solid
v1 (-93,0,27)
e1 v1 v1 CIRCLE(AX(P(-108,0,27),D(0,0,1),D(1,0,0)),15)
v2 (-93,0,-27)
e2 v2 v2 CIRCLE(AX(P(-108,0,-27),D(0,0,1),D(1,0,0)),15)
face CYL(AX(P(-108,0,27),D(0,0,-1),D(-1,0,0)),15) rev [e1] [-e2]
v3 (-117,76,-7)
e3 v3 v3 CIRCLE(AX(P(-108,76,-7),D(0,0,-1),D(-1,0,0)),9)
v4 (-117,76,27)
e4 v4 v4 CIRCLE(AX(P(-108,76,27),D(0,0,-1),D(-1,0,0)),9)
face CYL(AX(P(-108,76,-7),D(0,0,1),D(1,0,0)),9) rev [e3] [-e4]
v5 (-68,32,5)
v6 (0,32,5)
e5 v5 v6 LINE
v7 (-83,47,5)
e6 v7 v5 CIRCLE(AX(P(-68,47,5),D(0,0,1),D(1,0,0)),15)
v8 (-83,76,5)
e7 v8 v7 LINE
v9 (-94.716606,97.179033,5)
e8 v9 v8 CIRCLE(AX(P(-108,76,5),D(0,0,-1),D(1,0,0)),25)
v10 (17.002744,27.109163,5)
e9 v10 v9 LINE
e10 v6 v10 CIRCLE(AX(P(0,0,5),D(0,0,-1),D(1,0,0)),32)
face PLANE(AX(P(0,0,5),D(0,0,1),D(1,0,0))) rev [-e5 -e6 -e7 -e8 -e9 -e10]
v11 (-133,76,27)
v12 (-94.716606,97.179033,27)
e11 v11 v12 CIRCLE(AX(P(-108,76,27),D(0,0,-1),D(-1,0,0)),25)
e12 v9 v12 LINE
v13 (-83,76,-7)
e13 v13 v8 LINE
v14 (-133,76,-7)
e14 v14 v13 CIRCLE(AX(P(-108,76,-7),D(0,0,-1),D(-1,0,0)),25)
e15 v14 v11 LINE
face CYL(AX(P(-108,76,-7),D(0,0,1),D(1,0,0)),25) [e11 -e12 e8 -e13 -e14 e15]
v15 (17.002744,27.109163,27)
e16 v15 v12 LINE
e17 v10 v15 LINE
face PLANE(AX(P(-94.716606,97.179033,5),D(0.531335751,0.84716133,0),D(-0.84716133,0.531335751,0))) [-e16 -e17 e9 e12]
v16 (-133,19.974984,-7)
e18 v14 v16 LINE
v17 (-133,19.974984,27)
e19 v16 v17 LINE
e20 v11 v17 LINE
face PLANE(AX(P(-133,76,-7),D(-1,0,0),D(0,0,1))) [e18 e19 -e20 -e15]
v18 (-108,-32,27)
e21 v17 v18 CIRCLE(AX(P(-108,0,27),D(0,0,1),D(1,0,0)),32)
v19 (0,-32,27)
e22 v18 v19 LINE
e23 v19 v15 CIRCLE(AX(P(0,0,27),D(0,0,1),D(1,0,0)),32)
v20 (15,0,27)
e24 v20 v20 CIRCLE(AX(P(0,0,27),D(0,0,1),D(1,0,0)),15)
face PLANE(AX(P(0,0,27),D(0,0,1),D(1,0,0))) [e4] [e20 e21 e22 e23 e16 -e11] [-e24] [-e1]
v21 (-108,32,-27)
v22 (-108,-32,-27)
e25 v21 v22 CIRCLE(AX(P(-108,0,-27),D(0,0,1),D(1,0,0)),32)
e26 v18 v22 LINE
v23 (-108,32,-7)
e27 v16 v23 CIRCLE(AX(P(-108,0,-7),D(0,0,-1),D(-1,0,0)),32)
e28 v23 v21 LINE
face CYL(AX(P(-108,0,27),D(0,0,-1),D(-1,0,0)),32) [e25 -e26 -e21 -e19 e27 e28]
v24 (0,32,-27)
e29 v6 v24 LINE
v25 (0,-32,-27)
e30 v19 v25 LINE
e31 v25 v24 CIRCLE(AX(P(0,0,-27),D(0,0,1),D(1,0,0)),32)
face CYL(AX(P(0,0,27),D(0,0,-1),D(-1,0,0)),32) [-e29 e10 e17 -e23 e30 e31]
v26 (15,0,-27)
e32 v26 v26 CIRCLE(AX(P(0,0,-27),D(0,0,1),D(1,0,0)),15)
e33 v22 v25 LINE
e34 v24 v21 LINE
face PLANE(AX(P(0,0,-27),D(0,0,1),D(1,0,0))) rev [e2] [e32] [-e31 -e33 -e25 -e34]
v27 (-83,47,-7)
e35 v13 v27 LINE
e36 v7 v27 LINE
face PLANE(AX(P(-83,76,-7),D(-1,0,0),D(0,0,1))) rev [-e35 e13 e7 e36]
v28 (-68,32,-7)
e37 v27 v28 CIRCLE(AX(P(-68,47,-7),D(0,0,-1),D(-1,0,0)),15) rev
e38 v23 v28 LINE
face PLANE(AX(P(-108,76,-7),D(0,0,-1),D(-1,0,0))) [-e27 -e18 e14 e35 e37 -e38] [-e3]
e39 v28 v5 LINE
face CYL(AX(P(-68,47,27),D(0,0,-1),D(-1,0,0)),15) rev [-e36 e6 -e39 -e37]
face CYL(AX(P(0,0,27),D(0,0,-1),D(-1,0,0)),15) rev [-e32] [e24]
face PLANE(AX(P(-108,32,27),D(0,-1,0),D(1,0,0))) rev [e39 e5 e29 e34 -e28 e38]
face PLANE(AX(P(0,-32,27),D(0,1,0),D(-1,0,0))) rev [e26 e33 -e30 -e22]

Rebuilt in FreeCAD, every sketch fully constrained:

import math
import FreeCAD as App
import Part
import Sketcher

V = App.Vector


def edges_at(feature, points):
    """Names of the edges that pass closest to the given points."""
    edges = feature.Shape.Edges
    near = lambda p: min(range(len(edges)), key=lambda i: edges[i].distToShape(Part.Vertex(*p))[0])
    return sorted({f"Edge{near(p) + 1}" for p in points})

doc = App.newDocument("Part")
body = doc.addObject("PartDesign::Body", "Body")

sketch1 = body.newObject("Sketcher::SketchObject", "Sketch")
sketch1.AttachmentSupport = (doc.getObject("XY_Plane"), [""])
sketch1.MapMode = "FlatFace"
sketch1.addGeometry(Part.LineSegment(V(0, 32, 0), V(-108, 32, 0)), False)
sketch1.addGeometry(Part.ArcOfCircle(Part.Circle(V(-108, 0, 0), V(0, 0, 1), 32), math.radians(90), math.radians(270)), False)
sketch1.addGeometry(Part.LineSegment(V(-108, -32, 0), V(0, -32, 0)), False)
sketch1.addGeometry(Part.ArcOfCircle(Part.Circle(V(0, 0, 0), V(0, 0, 1), 32), math.radians(-90), math.radians(90)), False)
sketch1.addGeometry(Part.Circle(V(0, 0, 0), V(0, 0, 1), 15), False)
sketch1.addGeometry(Part.Circle(V(-108, 0, 0), V(0, 0, 1), 15), False)
sketch1.addConstraint(Sketcher.Constraint("Tangent", 0, 2, 1, 1))
sketch1.addConstraint(Sketcher.Constraint("Tangent", 1, 2, 2, 1))
sketch1.addConstraint(Sketcher.Constraint("Tangent", 2, 2, 3, 1))
sketch1.addConstraint(Sketcher.Constraint("Tangent", 3, 2, 0, 1))
sketch1.addConstraint(Sketcher.Constraint("Horizontal", 0))
sketch1.addConstraint(Sketcher.Constraint("Horizontal", 2))
sketch1.addConstraint(Sketcher.Constraint("Coincident", 3, 3, -1, 1))
sketch1.addConstraint(Sketcher.Constraint("Coincident", 4, 3, -1, 1))
sketch1.addConstraint(Sketcher.Constraint("Coincident", 5, 3, 1, 3))
sketch1.addConstraint(Sketcher.Constraint("Equal", 4, 5))
sketch1.addConstraint(Sketcher.Constraint("Diameter", 4, 30.0))
sketch1.addConstraint(Sketcher.Constraint("Radius", 1, 32.0))
sketch1.addConstraint(Sketcher.Constraint("DistanceX", 0, 2, 0, 1, 108.0))
pad1 = body.newObject("PartDesign::Pad", "Pad")
pad1.Profile = sketch1
pad1.Length = 54
pad1.Midplane = True

sketch2 = body.newObject("Sketcher::SketchObject", "Sketch001")
sketch2.AttachmentSupport = (doc.getObject("XY_Plane"), [""])
sketch2.MapMode = "FlatFace"
sketch2.AttachmentOffset = App.Placement(V(0, 0, 27), App.Rotation())
sketch2.addGeometry(Part.LineSegment(V(-83, 32, 0), V(-83, 76, 0)), False)
sketch2.addGeometry(Part.ArcOfCircle(Part.Circle(V(-108, 76, 0), V(0, 0, 1), 25), math.radians(0), math.radians(180)), False)
sketch2.addGeometry(Part.LineSegment(V(-133, 76, 0), V(-133, 20, 0)), False)
sketch2.addGeometry(Part.ArcOfCircle(Part.Circle(V(-108, 0, 0), V(0, 0, 1), 32), math.radians(90), math.radians(141)), False)
sketch2.addGeometry(Part.LineSegment(V(-108, 32, 0), V(-83, 32, 0)), False)
sketch2.addConstraint(Sketcher.Constraint("Tangent", 0, 2, 1, 1))
sketch2.addConstraint(Sketcher.Constraint("Tangent", 1, 2, 2, 1))
sketch2.addConstraint(Sketcher.Constraint("Coincident", 2, 2, 3, 2))
sketch2.addConstraint(Sketcher.Constraint("Tangent", 3, 1, 4, 1))
sketch2.addConstraint(Sketcher.Constraint("Coincident", 4, 2, 0, 1))
sketch2.addConstraint(Sketcher.Constraint("Vertical", 0))
sketch2.addConstraint(Sketcher.Constraint("Vertical", 2))
sketch2.addConstraint(Sketcher.Constraint("Horizontal", 4))
sketch2.addConstraint(Sketcher.Constraint("PointOnObject", 3, 3, -1))
sketch2.addConstraint(Sketcher.Constraint("Vertical", 1, 3, 3, 3))
sketch2.addConstraint(Sketcher.Constraint("Radius", 1, 25.0))
sketch2.addConstraint(Sketcher.Constraint("Radius", 3, 32.0))
sketch2.addConstraint(Sketcher.Constraint("DistanceY", 0, 1, 0, 2, 44.0))
sketch2.addConstraint(Sketcher.Constraint("DistanceX", 1, 3, -1, 1, 108.0))
pad2 = body.newObject("PartDesign::Pad", "Pad001")
pad2.Profile = sketch2
pad2.Length = 34
pad2.Reversed = True

sketch3 = body.newObject("Sketcher::SketchObject", "Sketch002")
sketch3.AttachmentSupport = (doc.getObject("XY_Plane"), [""])
sketch3.MapMode = "FlatFace"
sketch3.AttachmentOffset = App.Placement(V(0, 0, 27), App.Rotation())
sketch3.addGeometry(Part.Circle(V(-108, 76, 0), V(0, 0, 1), 9), False)
sketch3.addConstraint(Sketcher.Constraint("Diameter", 0, 18.0))
sketch3.addConstraint(Sketcher.Constraint("DistanceX", 0, 3, -1, 1, 108.0))
sketch3.addConstraint(Sketcher.Constraint("DistanceY", -1, 1, 0, 3, 76.0))
pocket1 = body.newObject("PartDesign::Pocket", "Pocket")
pocket1.Profile = sketch3
pocket1.Length = 34
doc.recompute()

fillet = body.newObject("PartDesign::Fillet", "Fillet")
fillet.Base = (pocket1, edges_at(pocket1, [(-83, 32, 10)]))
fillet.Radius = 15

sketch4 = body.newObject("Sketcher::SketchObject", "Sketch003")
sketch4.AttachmentSupport = (doc.getObject("XY_Plane"), [""])
sketch4.MapMode = "FlatFace"
sketch4.AttachmentOffset = App.Placement(V(0, 0, 27), App.Rotation())
sketch4.addGeometry(Part.LineSegment(V(17, 27, 0), V(-95, 97, 0)), False)
sketch4.addGeometry(Part.ArcOfCircle(Part.Circle(V(-108, 76, 0), V(0, 0, 1), 25), math.radians(0), math.radians(58)), False)
sketch4.addGeometry(Part.LineSegment(V(-83, 76, 0), V(-83, 47, 0)), False)
sketch4.addGeometry(Part.ArcOfCircle(Part.Circle(V(-68, 47, 0), V(0, 0, 1), 15), math.radians(180), math.radians(270)), False)
sketch4.addGeometry(Part.LineSegment(V(-68, 32, 0), V(0, 32, 0)), False)
sketch4.addGeometry(Part.ArcOfCircle(Part.Circle(V(0, 0, 0), V(0, 0, 1), 32), math.radians(58), math.radians(90)), False)
sketch4.addConstraint(Sketcher.Constraint("Tangent", 0, 2, 1, 2))
sketch4.addConstraint(Sketcher.Constraint("Tangent", 1, 1, 2, 1))
sketch4.addConstraint(Sketcher.Constraint("Tangent", 2, 2, 3, 1))
sketch4.addConstraint(Sketcher.Constraint("Tangent", 3, 2, 4, 1))
sketch4.addConstraint(Sketcher.Constraint("Tangent", 4, 2, 5, 2))
sketch4.addConstraint(Sketcher.Constraint("Tangent", 5, 1, 0, 1))
sketch4.addConstraint(Sketcher.Constraint("Vertical", 2))
sketch4.addConstraint(Sketcher.Constraint("Horizontal", 4))
sketch4.addConstraint(Sketcher.Constraint("Coincident", 5, 3, -1, 1))
sketch4.addConstraint(Sketcher.Constraint("Radius", 1, 25.0))
sketch4.addConstraint(Sketcher.Constraint("Radius", 3, 15.0))
sketch4.addConstraint(Sketcher.Constraint("Radius", 5, 32.0))
sketch4.addConstraint(Sketcher.Constraint("DistanceX", 4, 1, 4, 2, 68.0))
sketch4.addConstraint(Sketcher.Constraint("DistanceY", 2, 2, 2, 1, 29.0))
pad3 = body.newObject("PartDesign::Pad", "Pad002")
pad3.Profile = sketch4
pad3.Length = 22
pad3.Reversed = True

doc.recompute()
